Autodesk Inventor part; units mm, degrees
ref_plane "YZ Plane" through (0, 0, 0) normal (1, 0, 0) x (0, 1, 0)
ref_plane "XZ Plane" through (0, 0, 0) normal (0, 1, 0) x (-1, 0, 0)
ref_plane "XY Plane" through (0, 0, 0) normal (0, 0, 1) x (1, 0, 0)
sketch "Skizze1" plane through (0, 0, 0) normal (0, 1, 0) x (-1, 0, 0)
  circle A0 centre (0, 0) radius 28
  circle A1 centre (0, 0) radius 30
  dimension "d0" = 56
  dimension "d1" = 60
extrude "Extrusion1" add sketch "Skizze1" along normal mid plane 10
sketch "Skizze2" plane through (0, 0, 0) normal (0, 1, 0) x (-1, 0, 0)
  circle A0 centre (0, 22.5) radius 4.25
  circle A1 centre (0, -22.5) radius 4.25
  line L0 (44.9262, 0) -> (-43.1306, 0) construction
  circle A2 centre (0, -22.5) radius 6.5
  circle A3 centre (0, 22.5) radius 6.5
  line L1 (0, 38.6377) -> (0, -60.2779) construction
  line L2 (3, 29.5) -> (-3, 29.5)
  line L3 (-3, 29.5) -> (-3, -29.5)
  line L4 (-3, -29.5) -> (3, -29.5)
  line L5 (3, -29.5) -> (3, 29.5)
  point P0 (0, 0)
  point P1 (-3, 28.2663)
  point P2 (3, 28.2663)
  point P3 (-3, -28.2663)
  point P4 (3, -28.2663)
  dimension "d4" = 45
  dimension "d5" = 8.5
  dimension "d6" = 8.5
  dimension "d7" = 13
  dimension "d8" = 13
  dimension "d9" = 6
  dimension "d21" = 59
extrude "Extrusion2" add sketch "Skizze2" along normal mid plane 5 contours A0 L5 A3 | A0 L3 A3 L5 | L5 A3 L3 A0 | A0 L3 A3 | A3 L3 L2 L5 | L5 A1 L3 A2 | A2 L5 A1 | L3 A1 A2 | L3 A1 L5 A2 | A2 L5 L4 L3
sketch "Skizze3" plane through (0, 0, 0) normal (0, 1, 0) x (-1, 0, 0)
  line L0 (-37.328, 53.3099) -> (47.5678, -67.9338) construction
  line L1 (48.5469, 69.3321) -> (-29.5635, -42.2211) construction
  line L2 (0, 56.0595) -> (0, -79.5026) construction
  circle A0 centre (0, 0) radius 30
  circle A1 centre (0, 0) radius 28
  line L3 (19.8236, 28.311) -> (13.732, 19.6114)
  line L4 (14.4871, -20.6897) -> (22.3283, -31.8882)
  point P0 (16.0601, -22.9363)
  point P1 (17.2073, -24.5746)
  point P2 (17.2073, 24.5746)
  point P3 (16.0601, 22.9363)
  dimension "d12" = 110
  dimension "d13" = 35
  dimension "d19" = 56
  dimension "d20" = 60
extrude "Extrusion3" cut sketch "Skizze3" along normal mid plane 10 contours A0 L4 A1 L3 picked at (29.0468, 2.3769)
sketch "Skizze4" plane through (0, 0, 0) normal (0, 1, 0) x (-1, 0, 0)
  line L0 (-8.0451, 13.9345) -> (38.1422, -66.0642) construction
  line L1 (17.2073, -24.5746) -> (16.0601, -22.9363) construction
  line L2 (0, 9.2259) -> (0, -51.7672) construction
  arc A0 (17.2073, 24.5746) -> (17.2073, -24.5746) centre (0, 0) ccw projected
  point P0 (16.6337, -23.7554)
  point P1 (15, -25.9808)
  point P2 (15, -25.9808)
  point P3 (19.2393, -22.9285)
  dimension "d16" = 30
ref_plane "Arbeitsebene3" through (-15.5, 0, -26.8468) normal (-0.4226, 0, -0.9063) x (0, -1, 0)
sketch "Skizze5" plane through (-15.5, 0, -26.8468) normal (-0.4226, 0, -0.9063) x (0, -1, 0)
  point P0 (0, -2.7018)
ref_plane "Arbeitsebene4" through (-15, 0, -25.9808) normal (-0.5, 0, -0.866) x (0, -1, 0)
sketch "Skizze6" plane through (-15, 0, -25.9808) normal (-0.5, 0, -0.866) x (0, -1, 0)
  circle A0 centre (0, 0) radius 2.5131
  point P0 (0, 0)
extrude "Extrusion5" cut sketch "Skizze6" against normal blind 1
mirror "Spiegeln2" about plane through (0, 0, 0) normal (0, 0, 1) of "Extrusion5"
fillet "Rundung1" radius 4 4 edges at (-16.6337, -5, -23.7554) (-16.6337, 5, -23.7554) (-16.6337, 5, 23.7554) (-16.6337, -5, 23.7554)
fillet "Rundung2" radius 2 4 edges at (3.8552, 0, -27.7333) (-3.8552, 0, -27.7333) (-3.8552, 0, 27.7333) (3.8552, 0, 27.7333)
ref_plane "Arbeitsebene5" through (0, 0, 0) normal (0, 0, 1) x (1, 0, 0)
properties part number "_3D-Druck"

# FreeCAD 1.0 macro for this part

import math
import FreeCAD as App
import Part
import Sketcher

V = App.Vector
Q = App.Units.Quantity


def edges_at(feature, points):
    """Names of the edges that pass closest to the given points."""
    edges = feature.Shape.Edges
    near = lambda p: min(range(len(edges)), key=lambda i: edges[i].distToShape(Part.Vertex(*p))[0])
    return sorted({f"Edge{near(p) + 1}" for p in points})

doc = App.newDocument("Part")
params = doc.addObject("Spreadsheet::Sheet", "Params")
for row, (alias, value) in enumerate([
    ("sketch1_diameter", "60 mm"),
    ("sketch1_diameter2", "56 mm"),
    ("pad1_length", "10 mm"),
    ("sketch2_diameter", "8.5 mm"),
    ("sketch2_radius", "6.5 mm"),
    ("sketch2_width", "6 mm"),
    ("pad2_length", "5 mm"),
    ("sketch3_radius", "30 mm"),
    ("sketch3_radius2", "28 mm"),
    ("pocket1_length", "10 mm"),
    ("pocket2_length", "1 mm"),
    ("fillet_radius", "4 mm"),
    ("fillet2_radius", "2 mm"),
], start=1):
    params.set(f"A{row}", alias)
    params.set(f"B{row}", "=" + value)
    params.setAlias(f"B{row}", alias)

body = doc.addObject("PartDesign::Body", "Body")

# Sketch on XZ plane
sketch1 = doc.addObject("Sketcher::SketchObject", "Sketch")
body.addObject(sketch1)
sketch1.AttachmentSupport = (doc.XZ_Plane, [""])
sketch1.MapMode = "FlatFace"
sketch1.addGeometry([
    Part.Circle(V(0, 0, 0), V(0, 0, 1), 30),
    Part.Circle(V(0, 0, 0), V(0, 0, 1), 28),
], False)
sketch1.addConstraint([
    Sketcher.Constraint("Coincident", 0, 3, -1, 1),
    Sketcher.Constraint("Coincident", 1, 3, -1, 1),
    Sketcher.Constraint("Diameter", 0, Q("60 mm")),
    Sketcher.Constraint("Diameter", 1, Q("56 mm")),
])
sketch1.setExpression("Constraints[2]", "Params.sketch1_diameter")
sketch1.setExpression("Constraints[3]", "Params.sketch1_diameter2")
pad1 = doc.addObject("PartDesign::Pad", "Pad")
body.addObject(pad1)
pad1.Profile = sketch1
pad1.setExpression("Length", "Params.pad1_length")
pad1.Midplane = True

# Sketch on XZ plane
sketch2 = doc.addObject("Sketcher::SketchObject", "Sketch001")
body.addObject(sketch2)
sketch2.AttachmentSupport = (doc.XZ_Plane, [""])
sketch2.MapMode = "FlatFace"
sketch2.addGeometry([
    Part.LineSegment(V(-3, 28.3, 0), V(-3, 29.5, 0)),  # 0
    Part.LineSegment(V(-3, 29.5, 0), V(3, 29.5, 0)),  # 1
    Part.LineSegment(V(3, 29.5, 0), V(3, 28.3, 0)),  # 2
    Part.ArcOfCircle(Part.Circle(V(0, 22.5, 0), V(0, 0, 1), 6.5), math.radians(117), math.radians(423)),  # 3
    Part.Circle(V(0, 22.5, 0), V(0, 0, 1), 4.2),  # 4
    Part.LineSegment(V(3, -28.3, 0), V(3, -29.5, 0)),  # 5
    Part.LineSegment(V(3, -29.5, 0), V(-3, -29.5, 0)),  # 6
    Part.LineSegment(V(-3, -29.5, 0), V(-3, -28.3, 0)),  # 7
    Part.ArcOfCircle(Part.Circle(V(0, -22.5, 0), V(0, 0, 1), 6.5), math.radians(-63), math.radians(243)),  # 8
    Part.Circle(V(0, -22.5, 0), V(0, 0, 1), 4.2),  # 9
], False)
sketch2.addConstraint([
    Sketcher.Constraint("Coincident", 0, 2, 1, 1),
    Sketcher.Constraint("Coincident", 1, 2, 2, 1),
    Sketcher.Constraint("Coincident", 2, 2, 3, 2),
    Sketcher.Constraint("Coincident", 3, 1, 0, 1),
    Sketcher.Constraint("Coincident", 5, 2, 6, 1),
    Sketcher.Constraint("Coincident", 6, 2, 7, 1),
    Sketcher.Constraint("Coincident", 7, 2, 8, 2),
    Sketcher.Constraint("Coincident", 8, 1, 5, 1),
    Sketcher.Constraint("Vertical", 0),
    Sketcher.Constraint("Horizontal", 1),
    Sketcher.Constraint("Vertical", 2),
    Sketcher.Constraint("Vertical", 5),
    Sketcher.Constraint("Horizontal", 6),
    Sketcher.Constraint("Vertical", 7),
    Sketcher.Constraint("Coincident", 4, 3, 3, 3),
    Sketcher.Constraint("Coincident", 9, 3, 8, 3),
    Sketcher.Constraint("Equal", 3, 8),
    Sketcher.Constraint("Equal", 4, 9),
    Sketcher.Constraint("Symmetric", 3, 3, 8, 3, -1, 1),
    Sketcher.Constraint("Symmetric", 0, 2, 5, 2, -1, 1),
    Sketcher.Constraint("Symmetric", 2, 2, 3, 1, -2),
    Sketcher.Constraint("Horizontal", 7, 2, 8, 1),
    Sketcher.Constraint("Diameter", 4, Q("8.5 mm")),
    Sketcher.Constraint("Radius", 3, Q("6.5 mm")),
    Sketcher.Constraint("DistanceX", 1, 1, 1, 2, Q("6 mm")),
    Sketcher.Constraint("DistanceY", 8, 3, 3, 3, Q("45 mm")),
    Sketcher.Constraint("DistanceY", 3, 3, 0, 2, Q("7 mm")),
])
sketch2.setExpression("Constraints[22]", "Params.sketch2_diameter")
sketch2.setExpression("Constraints[23]", "Params.sketch2_radius")
sketch2.setExpression("Constraints[24]", "Params.sketch2_width")
pad2 = doc.addObject("PartDesign::Pad", "Pad001")
body.addObject(pad2)
pad2.Profile = sketch2
pad2.setExpression("Length", "Params.pad2_length")
pad2.Midplane = True

# Sketch on XZ plane
sketch3 = doc.addObject("Sketcher::SketchObject", "Sketch002")
body.addObject(sketch3)
sketch3.AttachmentSupport = (doc.XZ_Plane, [""])
sketch3.MapMode = "FlatFace"
sketch3.addGeometry([
    Part.ArcOfCircle(Part.Circle(V(0, 0, 0), V(0, 0, 1), 30), math.radians(125), math.radians(235)),
    Part.LineSegment(V(-17.2, 24.6, 0), V(-16.1, 22.9, 0)),
    Part.ArcOfCircle(Part.Circle(V(0, 0, 0), V(0, 0, 1), 28), math.radians(125), math.radians(235)),
    Part.LineSegment(V(-16.1, -22.9, 0), V(-17.2, -24.6, 0)),
], False)
sketch3.addConstraint([
    Sketcher.Constraint("Coincident", 0, 1, 1, 1),
    Sketcher.Constraint("Coincident", 1, 2, 2, 1),
    Sketcher.Constraint("Coincident", 2, 2, 3, 1),
    Sketcher.Constraint("Coincident", 3, 2, 0, 2),
    Sketcher.Constraint("Coincident", 0, 3, -1, 1),
    Sketcher.Constraint("Coincident", 2, 3, -1, 1),
    Sketcher.Constraint("Vertical", 1, 2, 2, 2),
    Sketcher.Constraint("Vertical", 0, 1, 3, 2),
    Sketcher.Constraint("Radius", 0, Q("30 mm")),
    Sketcher.Constraint("Radius", 2, Q("28 mm")),
    Sketcher.Constraint("Angle", 1, Q("-54.9997 deg")),
    Sketcher.Constraint("DistanceX", 0, 1, -1, 1, Q("17.2073 mm")),
])
sketch3.setExpression("Constraints[8]", "Params.sketch3_radius")
sketch3.setExpression("Constraints[9]", "Params.sketch3_radius2")
pocket1 = doc.addObject("PartDesign::Pocket", "Pocket")
body.addObject(pocket1)
pocket1.Profile = sketch3
pocket1.setExpression("Length", "Params.pocket1_length")
pocket1.Midplane = True

# Sketch on an angled plane
sketch4 = doc.addObject("Sketcher::SketchObject", "Sketch003")
body.addObject(sketch4)
sketch4.Placement = App.Placement(V(-15, 0, -25.9808), App.Rotation(V(0, -1, 0), V(-0.866025404, 0, 0.5), V(-0.5, 0, -0.866025404), "ZXY"))
sketch4.addGeometry(Part.Circle(V(0, 0, 0), V(0, 0, 1), 2.5), False)
sketch4.addConstraint([
    Sketcher.Constraint("Coincident", 0, 3, -1, 1),
    Sketcher.Constraint("Diameter", 0, Q("5.0262 mm")),
])
pocket2 = doc.addObject("PartDesign::Pocket", "Pocket001")
body.addObject(pocket2)
pocket2.Profile = sketch4
pocket2.setExpression("Length", "Params.pocket2_length")
doc.recompute()

mirrored = doc.addObject("PartDesign::Mirrored", "Mirrored")
body.addObject(mirrored)
mirrored.Originals = [pocket2]
mirrored.MirrorPlane = (doc.XY_Plane, [""])
body.Tip = mirrored
doc.recompute()

fillet = doc.addObject("PartDesign::Fillet", "Fillet")
body.addObject(fillet)
fillet.Base = (mirrored, edges_at(mirrored, [
    (-16.634, -5, -23.755),
    (-16.634, 5, -23.755),
    (-16.634, 5, 23.755),
    (-16.634, -5, 23.755),
]))
fillet.setExpression("Radius", "Params.fillet_radius")
doc.recompute()

fillet2 = doc.addObject("PartDesign::Fillet", "Fillet001")
body.addObject(fillet2)
fillet2.Base = (fillet, edges_at(fillet, [
    (3.855, 0, -27.733),
    (-3.855, 0, -27.733),
    (-3.855, 0, 27.733),
    (3.855, 0, 27.733),
]))
fillet2.setExpression("Radius", "Params.fillet2_radius")

doc.recompute()
